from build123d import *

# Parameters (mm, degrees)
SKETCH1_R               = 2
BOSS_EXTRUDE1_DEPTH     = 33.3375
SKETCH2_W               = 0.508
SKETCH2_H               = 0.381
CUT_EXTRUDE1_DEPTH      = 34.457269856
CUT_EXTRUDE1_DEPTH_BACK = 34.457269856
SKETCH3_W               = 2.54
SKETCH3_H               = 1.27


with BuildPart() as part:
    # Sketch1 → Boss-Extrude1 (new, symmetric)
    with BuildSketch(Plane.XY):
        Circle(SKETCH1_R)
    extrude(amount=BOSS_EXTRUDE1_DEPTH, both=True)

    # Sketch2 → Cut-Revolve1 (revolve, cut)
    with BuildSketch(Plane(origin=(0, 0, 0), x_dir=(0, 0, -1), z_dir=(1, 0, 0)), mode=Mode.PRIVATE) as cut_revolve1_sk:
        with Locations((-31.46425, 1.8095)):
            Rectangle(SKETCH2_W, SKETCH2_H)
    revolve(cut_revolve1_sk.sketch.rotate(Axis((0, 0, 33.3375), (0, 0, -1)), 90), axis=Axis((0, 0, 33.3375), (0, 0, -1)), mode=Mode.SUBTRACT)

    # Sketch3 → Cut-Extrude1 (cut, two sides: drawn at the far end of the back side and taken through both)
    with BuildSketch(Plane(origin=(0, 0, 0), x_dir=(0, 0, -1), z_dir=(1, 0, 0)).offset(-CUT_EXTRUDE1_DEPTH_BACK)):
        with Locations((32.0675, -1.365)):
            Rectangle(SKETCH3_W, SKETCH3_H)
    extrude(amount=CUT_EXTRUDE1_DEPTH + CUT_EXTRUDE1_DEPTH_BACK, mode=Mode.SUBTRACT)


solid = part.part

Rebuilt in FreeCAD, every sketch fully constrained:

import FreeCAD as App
import Part
import Sketcher

V = App.Vector
Q = App.Units.Quantity


def add_polygon(sketch, points):
    """Adds a closed chain of lines whose ends are joined by coincident constraints."""
    first, n = sketch.GeometryCount, len(points)
    for a, b in zip(points, points[1:] + points[:1]):
        sketch.addGeometry(Part.LineSegment(App.Vector(*a, 0), App.Vector(*b, 0)), False)
    for i in range(n):
        sketch.addConstraint(Sketcher.Constraint("Coincident", first + i, 2, first + (i + 1) % n, 1))

doc = App.newDocument("Part")
body = doc.addObject("PartDesign::Body", "Body")

# Sketch on XY plane
sketch1 = body.newObject("Sketcher::SketchObject", "Sketch")
sketch1.AttachmentSupport = (doc.getObject("XY_Plane"), [""])
sketch1.MapMode = "FlatFace"
sketch1.addGeometry(Part.Circle(V(0, 0, 0), V(0, 0, 1), 2), False)
sketch1.addConstraint([
    Sketcher.Constraint("Coincident", 0, 3, -1, 1),
    Sketcher.Constraint("Diameter", 0, 4.0),
])
pad1 = body.newObject("PartDesign::Pad", "Pad")
pad1.Profile = sketch1
pad1.Length = Q("2.625 in")
pad1.Midplane = True

# Sketch on YZ plane
sketch2 = body.newObject("Sketcher::SketchObject", "Sketch001")
sketch2.AttachmentSupport = (doc.getObject("YZ_Plane"), [""])
sketch2.MapMode = "FlatFace"
add_polygon(sketch2, [(2, 31.71825), (1.619, 31.71825), (1.619, 31.21025), (2, 31.21025)])  # lines 0-3
sketch2.addConstraint([
    Sketcher.Constraint("Horizontal", 0),
    Sketcher.Constraint("Vertical", 1),
    Sketcher.Constraint("Horizontal", 2),
    Sketcher.Constraint("Vertical", 3),
    Sketcher.Constraint("DistanceY", 1, 2, 1, 1, Q("0.02 in")),
    Sketcher.Constraint("DistanceX", 0, 2, 0, 1, Q("0.015 in")),
    Sketcher.Constraint("DistanceX", -1, 1, 0, 2, 1.619),
    Sketcher.Constraint("DistanceY", -1, 1, 0, 2, 31.71825),
])
groove = body.newObject("PartDesign::Groove", "Groove")
groove.Profile = sketch2
groove.ReferenceAxis = (sketch2, ["V_Axis"])
groove.Angle = 360

# Sketch on YZ plane
sketch3 = body.newObject("Sketcher::SketchObject", "Sketch002")
sketch3.AttachmentSupport = (doc.getObject("YZ_Plane"), [""])
sketch3.MapMode = "FlatFace"
add_polygon(sketch3, [(-0.73, -30.7975), (-2, -30.7975), (-2, -33.3375), (-0.73, -33.3375)])  # lines 0-3
sketch3.addConstraint([
    Sketcher.Constraint("Horizontal", 0),
    Sketcher.Constraint("Vertical", 1),
    Sketcher.Constraint("Horizontal", 2),
    Sketcher.Constraint("Vertical", 3),
    Sketcher.Constraint("DistanceY", 1, 2, 1, 1, Q("0.1 in")),
    Sketcher.Constraint("DistanceX", 0, 2, 0, 1, Q("0.05 in")),
    Sketcher.Constraint("DistanceY", 1, 2, -1, 1, Q("1.3125 in")),
    Sketcher.Constraint("DistanceX", 0, 2, -1, 1, 2.0),
])
pocket1 = body.newObject("PartDesign::Pocket", "Pocket")
pocket1.Profile = sketch3
pocket1.Type = "ThroughAll"
pocket1.Midplane = True

doc.recompute()
